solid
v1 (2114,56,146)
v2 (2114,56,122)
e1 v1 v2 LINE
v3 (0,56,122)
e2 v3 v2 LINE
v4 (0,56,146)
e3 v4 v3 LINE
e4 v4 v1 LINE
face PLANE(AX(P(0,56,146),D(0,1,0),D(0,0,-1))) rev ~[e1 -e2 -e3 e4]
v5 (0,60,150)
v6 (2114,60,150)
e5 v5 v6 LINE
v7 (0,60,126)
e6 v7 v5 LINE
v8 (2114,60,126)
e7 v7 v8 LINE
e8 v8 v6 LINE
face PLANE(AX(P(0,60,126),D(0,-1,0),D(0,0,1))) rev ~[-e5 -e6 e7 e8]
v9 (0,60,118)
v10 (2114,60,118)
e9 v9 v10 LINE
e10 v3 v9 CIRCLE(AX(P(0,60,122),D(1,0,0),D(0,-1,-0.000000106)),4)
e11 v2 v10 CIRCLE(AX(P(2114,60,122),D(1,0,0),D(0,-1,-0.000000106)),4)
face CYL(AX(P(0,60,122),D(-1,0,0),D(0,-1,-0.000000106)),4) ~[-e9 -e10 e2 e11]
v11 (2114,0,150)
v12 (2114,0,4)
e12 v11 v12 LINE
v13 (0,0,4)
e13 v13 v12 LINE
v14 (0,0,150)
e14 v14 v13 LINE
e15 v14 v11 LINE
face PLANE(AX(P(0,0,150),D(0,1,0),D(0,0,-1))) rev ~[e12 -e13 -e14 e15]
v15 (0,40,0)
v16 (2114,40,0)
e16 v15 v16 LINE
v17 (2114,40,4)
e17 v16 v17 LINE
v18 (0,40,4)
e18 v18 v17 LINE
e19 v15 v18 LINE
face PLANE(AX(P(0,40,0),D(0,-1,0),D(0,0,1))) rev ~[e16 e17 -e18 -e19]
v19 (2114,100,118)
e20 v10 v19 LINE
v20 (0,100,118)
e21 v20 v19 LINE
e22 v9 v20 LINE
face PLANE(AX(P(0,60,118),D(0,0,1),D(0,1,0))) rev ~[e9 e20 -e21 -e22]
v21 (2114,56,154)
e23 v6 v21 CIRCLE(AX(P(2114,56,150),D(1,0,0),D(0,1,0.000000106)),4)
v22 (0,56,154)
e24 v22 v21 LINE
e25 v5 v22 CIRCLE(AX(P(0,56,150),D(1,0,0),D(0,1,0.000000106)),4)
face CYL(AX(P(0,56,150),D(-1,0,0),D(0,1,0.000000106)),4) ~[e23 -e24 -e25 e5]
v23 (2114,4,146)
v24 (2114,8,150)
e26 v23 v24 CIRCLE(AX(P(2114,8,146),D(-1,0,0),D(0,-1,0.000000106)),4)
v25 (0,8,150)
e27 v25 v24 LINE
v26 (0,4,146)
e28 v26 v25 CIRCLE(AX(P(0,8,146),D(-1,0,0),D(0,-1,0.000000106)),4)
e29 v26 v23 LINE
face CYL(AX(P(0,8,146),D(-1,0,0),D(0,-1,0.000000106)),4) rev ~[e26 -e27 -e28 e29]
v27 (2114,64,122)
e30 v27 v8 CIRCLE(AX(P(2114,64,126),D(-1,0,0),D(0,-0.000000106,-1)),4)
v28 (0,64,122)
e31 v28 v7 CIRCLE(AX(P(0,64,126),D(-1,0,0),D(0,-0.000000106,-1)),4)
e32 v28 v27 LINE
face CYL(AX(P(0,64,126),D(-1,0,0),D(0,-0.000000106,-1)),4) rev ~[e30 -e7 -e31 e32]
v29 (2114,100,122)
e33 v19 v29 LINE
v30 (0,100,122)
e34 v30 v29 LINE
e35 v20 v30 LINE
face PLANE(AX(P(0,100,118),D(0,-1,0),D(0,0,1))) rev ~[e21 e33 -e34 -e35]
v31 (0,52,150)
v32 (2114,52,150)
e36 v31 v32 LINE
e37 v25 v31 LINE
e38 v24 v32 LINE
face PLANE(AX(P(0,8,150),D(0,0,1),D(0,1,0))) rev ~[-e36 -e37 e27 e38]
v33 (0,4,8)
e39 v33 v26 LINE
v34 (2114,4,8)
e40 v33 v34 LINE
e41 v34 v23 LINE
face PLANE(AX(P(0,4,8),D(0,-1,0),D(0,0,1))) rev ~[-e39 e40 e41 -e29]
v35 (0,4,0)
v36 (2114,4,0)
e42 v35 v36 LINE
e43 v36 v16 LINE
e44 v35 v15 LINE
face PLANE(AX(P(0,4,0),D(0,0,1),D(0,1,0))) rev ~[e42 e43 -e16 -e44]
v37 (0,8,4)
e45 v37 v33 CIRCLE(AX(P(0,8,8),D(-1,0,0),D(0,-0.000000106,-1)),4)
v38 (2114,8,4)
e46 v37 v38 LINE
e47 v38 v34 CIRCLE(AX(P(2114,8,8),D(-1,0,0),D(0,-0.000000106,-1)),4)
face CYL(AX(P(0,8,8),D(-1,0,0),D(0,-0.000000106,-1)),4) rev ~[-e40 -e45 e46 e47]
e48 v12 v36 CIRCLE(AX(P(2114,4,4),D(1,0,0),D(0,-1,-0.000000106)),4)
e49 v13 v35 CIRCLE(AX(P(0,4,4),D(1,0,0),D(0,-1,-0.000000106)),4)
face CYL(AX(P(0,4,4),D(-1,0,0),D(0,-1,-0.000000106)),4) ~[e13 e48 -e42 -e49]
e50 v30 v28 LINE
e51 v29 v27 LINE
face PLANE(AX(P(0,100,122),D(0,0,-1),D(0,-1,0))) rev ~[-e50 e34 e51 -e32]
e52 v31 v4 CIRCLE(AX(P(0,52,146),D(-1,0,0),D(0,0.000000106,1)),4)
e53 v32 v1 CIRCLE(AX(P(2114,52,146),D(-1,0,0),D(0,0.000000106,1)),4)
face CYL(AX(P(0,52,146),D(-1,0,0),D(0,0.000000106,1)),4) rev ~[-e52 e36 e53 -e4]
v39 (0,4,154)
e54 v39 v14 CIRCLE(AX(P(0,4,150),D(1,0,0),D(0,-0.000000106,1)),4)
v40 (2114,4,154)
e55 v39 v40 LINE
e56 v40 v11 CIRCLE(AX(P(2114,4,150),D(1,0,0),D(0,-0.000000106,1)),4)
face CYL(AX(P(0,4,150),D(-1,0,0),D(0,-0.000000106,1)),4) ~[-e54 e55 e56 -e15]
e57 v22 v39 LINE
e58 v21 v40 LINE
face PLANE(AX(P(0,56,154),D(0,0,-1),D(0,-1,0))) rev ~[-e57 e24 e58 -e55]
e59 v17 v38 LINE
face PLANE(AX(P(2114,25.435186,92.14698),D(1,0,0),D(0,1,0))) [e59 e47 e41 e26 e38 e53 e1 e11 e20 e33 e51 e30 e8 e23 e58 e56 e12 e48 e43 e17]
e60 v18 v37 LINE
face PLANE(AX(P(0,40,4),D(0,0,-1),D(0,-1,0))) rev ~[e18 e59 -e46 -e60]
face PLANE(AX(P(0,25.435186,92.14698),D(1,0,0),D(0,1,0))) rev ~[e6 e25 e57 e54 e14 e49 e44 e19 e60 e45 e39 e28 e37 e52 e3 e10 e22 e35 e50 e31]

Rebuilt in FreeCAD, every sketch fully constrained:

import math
import FreeCAD as App
import Part
import Sketcher

V = App.Vector
Q = App.Units.Quantity

doc = App.newDocument("Part")
body = doc.addObject("PartDesign::Body", "Body")

sketch1 = doc.addObject("Sketcher::SketchObject", "Sketch")
body.addObject(sketch1)
sketch1.AttachmentSupport = (doc.YZ_Plane, [""])
sketch1.MapMode = "FlatFace"
sketch1.addGeometry([
    Part.ArcOfCircle(Part.Circle(V(4, 4, 0), V(0, 0, 1), 4), math.radians(-180), math.radians(-90)),
    Part.LineSegment(V(4, 0, 0), V(40, 0, 0)),
    Part.LineSegment(V(40, 0, 0), V(40, 4, 0)),
    Part.LineSegment(V(40, 4, 0), V(8, 4, 0)),
    Part.ArcOfCircle(Part.Circle(V(8, 8, 0), V(0, 0, 1), 4), math.radians(-180), math.radians(-90)),
    Part.LineSegment(V(4, 8, 0), V(4, 146, 0)),
    Part.ArcOfCircle(Part.Circle(V(8, 146, 0), V(0, 0, 1), 4), math.radians(90), math.radians(180)),
    Part.LineSegment(V(8, 150, 0), V(52, 150, 0)),
    Part.ArcOfCircle(Part.Circle(V(52, 146, 0), V(0, 0, 1), 4), math.radians(0), math.radians(90)),
    Part.LineSegment(V(56, 146, 0), V(56, 122, 0)),
    Part.ArcOfCircle(Part.Circle(V(60, 122, 0), V(0, 0, 1), 4), math.radians(-180), math.radians(-90)),
    Part.LineSegment(V(60, 118, 0), V(100, 118, 0)),
    Part.LineSegment(V(100, 118, 0), V(100, 122, 0)),
    Part.LineSegment(V(100, 122, 0), V(64, 122, 0)),
    Part.ArcOfCircle(Part.Circle(V(64, 126, 0), V(0, 0, 1), 4), math.radians(-180), math.radians(-90)),
    Part.LineSegment(V(60, 126, 0), V(60, 150, 0)),
    Part.ArcOfCircle(Part.Circle(V(56, 150, 0), V(0, 0, 1), 4), math.radians(0), math.radians(90)),
    Part.LineSegment(V(56, 154, 0), V(4, 154, 0)),
    Part.ArcOfCircle(Part.Circle(V(4, 150, 0), V(0, 0, 1), 4), math.radians(90), math.radians(180)),
    Part.LineSegment(V(0, 150, 0), V(0, 4, 0)),
], False)
sketch1.addConstraint([
    Sketcher.Constraint("Tangent", 0, 2, 1, 1),
    Sketcher.Constraint("Coincident", 1, 2, 2, 1),
    Sketcher.Constraint("Coincident", 2, 2, 3, 1),
    Sketcher.Constraint("Tangent", 3, 2, 4, 2),
    Sketcher.Constraint("Tangent", 4, 1, 5, 1),
    Sketcher.Constraint("Tangent", 5, 2, 6, 2),
    Sketcher.Constraint("Tangent", 6, 1, 7, 1),
    Sketcher.Constraint("Tangent", 7, 2, 8, 2),
    Sketcher.Constraint("Tangent", 8, 1, 9, 1),
    Sketcher.Constraint("Tangent", 9, 2, 10, 1),
    Sketcher.Constraint("Tangent", 10, 2, 11, 1),
    Sketcher.Constraint("Coincident", 11, 2, 12, 1),
    Sketcher.Constraint("Coincident", 12, 2, 13, 1),
    Sketcher.Constraint("Tangent", 13, 2, 14, 2),
    Sketcher.Constraint("Tangent", 14, 1, 15, 1),
    Sketcher.Constraint("Tangent", 15, 2, 16, 1),
    Sketcher.Constraint("Tangent", 16, 2, 17, 1),
    Sketcher.Constraint("Tangent", 17, 2, 18, 1),
    Sketcher.Constraint("Tangent", 18, 2, 19, 1),
    Sketcher.Constraint("Tangent", 19, 2, 0, 1),
    Sketcher.Constraint("Horizontal", 1),
    Sketcher.Constraint("Vertical", 2),
    Sketcher.Constraint("Horizontal", 3),
    Sketcher.Constraint("Vertical", 5),
    Sketcher.Constraint("Horizontal", 7),
    Sketcher.Constraint("Vertical", 9),
    Sketcher.Constraint("Horizontal", 11),
    Sketcher.Constraint("Vertical", 12),
    Sketcher.Constraint("Horizontal", 13),
    Sketcher.Constraint("Vertical", 15),
    Sketcher.Constraint("Horizontal", 17),
    Sketcher.Constraint("Vertical", 19),
    Sketcher.Constraint("Equal", 0, 4),
    Sketcher.Constraint("Equal", 4, 6),
    Sketcher.Constraint("Equal", 6, 8),
    Sketcher.Constraint("Equal", 8, 10),
    Sketcher.Constraint("Equal", 10, 14),
    Sketcher.Constraint("Equal", 14, 16),
    Sketcher.Constraint("Equal", 16, 18),
    Sketcher.Constraint("PointOnObject", 0, 2, -1),
    Sketcher.Constraint("PointOnObject", 18, 2, -2),
    Sketcher.Constraint("Horizontal", 0, 3, 2, 2),
    Sketcher.Constraint("Horizontal", 18, 3, 6, 1),
    Sketcher.Constraint("Horizontal", 9, 2, 12, 2),
    Sketcher.Constraint("Vertical", 0, 2, 4, 1),
    Sketcher.Constraint("Vertical", 16, 3, 8, 1),
    Sketcher.Constraint("Equal", 1, 13),
    Sketcher.Constraint("Radius", 0, Q("4 mm")),
    Sketcher.Constraint("DistanceX", 1, 1, 1, 2, Q("36 mm")),
    Sketcher.Constraint("DistanceX", 7, 1, 7, 2, Q("44 mm")),
    Sketcher.Constraint("DistanceY", 5, 1, 5, 2, Q("138 mm")),
    Sketcher.Constraint("DistanceY", 9, 2, 9, 1, Q("24 mm")),
])
pad1 = doc.addObject("PartDesign::Pad", "Pad")
body.addObject(pad1)
pad1.Profile = sketch1
pad1.Length = 2114

doc.recompute()
